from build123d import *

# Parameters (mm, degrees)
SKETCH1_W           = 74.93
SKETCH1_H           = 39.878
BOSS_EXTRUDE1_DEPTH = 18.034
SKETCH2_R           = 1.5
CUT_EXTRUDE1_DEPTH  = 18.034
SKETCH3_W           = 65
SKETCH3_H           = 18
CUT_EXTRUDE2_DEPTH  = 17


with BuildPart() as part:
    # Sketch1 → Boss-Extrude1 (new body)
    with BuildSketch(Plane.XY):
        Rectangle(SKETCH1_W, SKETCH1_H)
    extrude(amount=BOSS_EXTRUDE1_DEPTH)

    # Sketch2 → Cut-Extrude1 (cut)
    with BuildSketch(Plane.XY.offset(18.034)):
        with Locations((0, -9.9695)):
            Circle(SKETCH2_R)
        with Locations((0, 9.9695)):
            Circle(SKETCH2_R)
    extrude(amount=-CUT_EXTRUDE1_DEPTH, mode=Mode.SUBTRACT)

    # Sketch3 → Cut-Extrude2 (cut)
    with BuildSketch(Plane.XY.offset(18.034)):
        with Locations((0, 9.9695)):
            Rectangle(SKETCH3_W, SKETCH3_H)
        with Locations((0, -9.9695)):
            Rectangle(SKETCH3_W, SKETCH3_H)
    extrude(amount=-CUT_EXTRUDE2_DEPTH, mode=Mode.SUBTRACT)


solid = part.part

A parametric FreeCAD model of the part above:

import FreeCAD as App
import Part
import Sketcher

V = App.Vector

doc = App.newDocument("Part")
body = doc.addObject("PartDesign::Body", "Body")

# Sketch on XY plane
sketch1 = body.newObject("Sketcher::SketchObject", "Sketch")
sketch1.AttachmentSupport = (doc.getObject("XY_Plane"), [""])
sketch1.MapMode = "FlatFace"
sketch1.addGeometry([
    Part.LineSegment(V(-37, 20, 0), V(-37, -20, 0)),
    Part.LineSegment(V(-37, -20, 0), V(37, -20, 0)),
    Part.LineSegment(V(37, -20, 0), V(37, 20, 0)),
    Part.LineSegment(V(37, 20, 0), V(-37, 20, 0)),
], False)
sketch1.addConstraint([
    Sketcher.Constraint("Coincident", 0, 2, 1, 1),
    Sketcher.Constraint("Coincident", 1, 2, 2, 1),
    Sketcher.Constraint("Coincident", 2, 2, 3, 1),
    Sketcher.Constraint("Coincident", 3, 2, 0, 1),
    Sketcher.Constraint("Vertical", 0),
    Sketcher.Constraint("Horizontal", 1),
    Sketcher.Constraint("Vertical", 2),
    Sketcher.Constraint("Horizontal", 3),
    Sketcher.Constraint("Symmetric", 0, 2, 2, 2, -1, 1),
    Sketcher.Constraint("DistanceX", 1, 1, 1, 2, 74.93),
    Sketcher.Constraint("DistanceY", 0, 2, 0, 1, 39.878),
])
pad1 = body.newObject("PartDesign::Pad", "Pad")
pad1.Profile = sketch1
pad1.Length = 18.034

# Sketch on XY plane
sketch2 = body.newObject("Sketcher::SketchObject", "Sketch001")
sketch2.AttachmentSupport = (doc.getObject("XY_Plane"), [""])
sketch2.MapMode = "FlatFace"
sketch2.AttachmentOffset = App.Placement(V(0, 0, 18.034), App.Rotation())
sketch2.addGeometry([
    Part.Circle(V(0, -10, 0), V(0, 0, 1), 1.5),
    Part.Circle(V(0, 10, 0), V(0, 0, 1), 1.5),
], False)
sketch2.addConstraint([
    Sketcher.Constraint("Equal", 0, 1),
    Sketcher.Constraint("Symmetric", 0, 3, 1, 3, -1, 1),
    Sketcher.Constraint("PointOnObject", 0, 3, -2),
    Sketcher.Constraint("Diameter", 0, 3.0),
    Sketcher.Constraint("DistanceY", 0, 3, 1, 3, 19.939),
])
pocket1 = body.newObject("PartDesign::Pocket", "Pocket")
pocket1.Profile = sketch2
pocket1.Length = 18.034

# Sketch on XY plane
sketch3 = body.newObject("Sketcher::SketchObject", "Sketch002")
sketch3.AttachmentSupport = (doc.getObject("XY_Plane"), [""])
sketch3.MapMode = "FlatFace"
sketch3.AttachmentOffset = App.Placement(V(0, 0, 18.034), App.Rotation())
sketch3.addGeometry([
    Part.LineSegment(V(-32, 19, 0), V(-32, 1, 0)),  # 0
    Part.LineSegment(V(-32, 1, 0), V(32, 1, 0)),  # 1
    Part.LineSegment(V(32, 1, 0), V(32, 19, 0)),  # 2
    Part.LineSegment(V(32, 19, 0), V(-32, 19, 0)),  # 3
    Part.LineSegment(V(-32, -1, 0), V(-32, -19, 0)),  # 4
    Part.LineSegment(V(-32, -19, 0), V(32, -19, 0)),  # 5
    Part.LineSegment(V(32, -19, 0), V(32, -1, 0)),  # 6
    Part.LineSegment(V(32, -1, 0), V(-32, -1, 0)),  # 7
], False)
sketch3.addConstraint([
    Sketcher.Constraint("Coincident", 0, 2, 1, 1),
    Sketcher.Constraint("Coincident", 1, 2, 2, 1),
    Sketcher.Constraint("Coincident", 2, 2, 3, 1),
    Sketcher.Constraint("Coincident", 3, 2, 0, 1),
    Sketcher.Constraint("Coincident", 4, 2, 5, 1),
    Sketcher.Constraint("Coincident", 5, 2, 6, 1),
    Sketcher.Constraint("Coincident", 6, 2, 7, 1),
    Sketcher.Constraint("Coincident", 7, 2, 4, 1),
    Sketcher.Constraint("Vertical", 0),
    Sketcher.Constraint("Horizontal", 1),
    Sketcher.Constraint("Vertical", 2),
    Sketcher.Constraint("Horizontal", 3),
    Sketcher.Constraint("Vertical", 4),
    Sketcher.Constraint("Horizontal", 5),
    Sketcher.Constraint("Vertical", 6),
    Sketcher.Constraint("Horizontal", 7),
    Sketcher.Constraint("Symmetric", 2, 2, 4, 2, -1, 1),
    Sketcher.Constraint("Symmetric", 0, 2, 6, 2, -1, 1),
    Sketcher.Constraint("Vertical", 3, 2, 4, 2),
    Sketcher.Constraint("DistanceX", 1, 1, 1, 2, 65.0),
    Sketcher.Constraint("DistanceY", 0, 2, 0, 1, 18.0),
    Sketcher.Constraint("DistanceY", 4, 2, 0, 2, 19.939),
])
pocket2 = body.newObject("PartDesign::Pocket", "Pocket001")
pocket2.Profile = sketch3
pocket2.Length = 17

doc.recompute()
